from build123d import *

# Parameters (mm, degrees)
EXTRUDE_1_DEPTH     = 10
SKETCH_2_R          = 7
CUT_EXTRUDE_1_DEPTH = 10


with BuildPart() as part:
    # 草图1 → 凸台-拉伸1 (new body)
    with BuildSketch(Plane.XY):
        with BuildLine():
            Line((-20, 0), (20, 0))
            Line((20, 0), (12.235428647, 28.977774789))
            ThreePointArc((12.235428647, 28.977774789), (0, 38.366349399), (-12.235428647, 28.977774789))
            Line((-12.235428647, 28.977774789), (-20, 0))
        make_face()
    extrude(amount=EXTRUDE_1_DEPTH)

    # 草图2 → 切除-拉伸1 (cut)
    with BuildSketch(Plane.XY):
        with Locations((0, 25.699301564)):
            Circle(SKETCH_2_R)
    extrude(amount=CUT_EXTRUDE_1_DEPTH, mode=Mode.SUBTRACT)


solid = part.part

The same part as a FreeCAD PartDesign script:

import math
import FreeCAD as App
import Part
import Sketcher
from FreeCAD import Vector
Q = App.Units.Quantity

doc = App.newDocument("Part")
params = doc.addObject("Spreadsheet::Sheet", "Params")
for row, (alias, value) in enumerate([
    ("sketch1_width", "40 mm"),
    ("sketch1_length", "30 mm"),
    ("pad1_length", "10 mm"),
    ("sketch2_diameter", "14 mm"),
    ("pocket1_length", "10 mm"),
], start=1):
    params.set(f"A{row}", alias)
    params.set(f"B{row}", "=" + value)
    params.setAlias(f"B{row}", alias)

body = doc.addObject("PartDesign::Body", "Body")

sketch1 = doc.addObject("Sketcher::SketchObject", "Sketch")
body.addObject(sketch1)
sketch1.AttachmentSupport = (doc.XY_Plane, [""])
sketch1.MapMode = "FlatFace"
sketch1.addGeometry([
    Part.LineSegment(Vector(-20, 0, 0), Vector(20, 0, 0)),
    Part.LineSegment(Vector(20, 0, 0), Vector(12, 29, 0)),
    Part.ArcOfCircle(Part.Circle(Vector(0, 26, 0), Vector(0, 0, 1), 13), math.radians(15), math.radians(165)),
    Part.LineSegment(Vector(-12, 29, 0), Vector(-20, 0, 0)),
], False)
sketch1.addConstraint([
    Sketcher.Constraint("Coincident", 0, 2, 1, 1),
    Sketcher.Constraint("Tangent", 1, 2, 2, 1),
    Sketcher.Constraint("Tangent", 2, 2, 3, 1),
    Sketcher.Constraint("Coincident", 3, 2, 0, 1),
    Sketcher.Constraint("Horizontal", 0),
    Sketcher.Constraint("Symmetric", 0, 2, 3, 2, -1, 1),
    Sketcher.Constraint("PointOnObject", 2, 3, -2),
    Sketcher.Constraint("DistanceX", 0, 1, 0, 2, 40.0),
    Sketcher.Constraint("Angle", 1, Q("105 deg")),
    Sketcher.Constraint("Distance", 1, 30.0),
])
sketch1.setExpression("Constraints[7]", "Params.sketch1_width")
sketch1.setExpression("Constraints[9]", "Params.sketch1_length")
pad1 = doc.addObject("PartDesign::Pad", "Pad")
body.addObject(pad1)
pad1.Profile = sketch1
pad1.setExpression("Length", "Params.pad1_length")

sketch2 = doc.addObject("Sketcher::SketchObject", "Sketch001")
body.addObject(sketch2)
sketch2.AttachmentSupport = (doc.XY_Plane, [""])
sketch2.MapMode = "FlatFace"
sketch2.addGeometry(Part.Circle(Vector(0, 26, 0), Vector(0, 0, 1), 7), False)
sketch2.addConstraint([
    Sketcher.Constraint("PointOnObject", 0, 3, -2),
    Sketcher.Constraint("Diameter", 0, 14.0),
    Sketcher.Constraint("DistanceY", -1, 1, 0, 3, 25.699302),
])
sketch2.setExpression("Constraints[1]", "Params.sketch2_diameter")
pocket1 = doc.addObject("PartDesign::Pocket", "Pocket")
body.addObject(pocket1)
pocket1.Profile = sketch2
pocket1.setExpression("Length", "Params.pocket1_length")
pocket1.Reversed = True

doc.recompute()
